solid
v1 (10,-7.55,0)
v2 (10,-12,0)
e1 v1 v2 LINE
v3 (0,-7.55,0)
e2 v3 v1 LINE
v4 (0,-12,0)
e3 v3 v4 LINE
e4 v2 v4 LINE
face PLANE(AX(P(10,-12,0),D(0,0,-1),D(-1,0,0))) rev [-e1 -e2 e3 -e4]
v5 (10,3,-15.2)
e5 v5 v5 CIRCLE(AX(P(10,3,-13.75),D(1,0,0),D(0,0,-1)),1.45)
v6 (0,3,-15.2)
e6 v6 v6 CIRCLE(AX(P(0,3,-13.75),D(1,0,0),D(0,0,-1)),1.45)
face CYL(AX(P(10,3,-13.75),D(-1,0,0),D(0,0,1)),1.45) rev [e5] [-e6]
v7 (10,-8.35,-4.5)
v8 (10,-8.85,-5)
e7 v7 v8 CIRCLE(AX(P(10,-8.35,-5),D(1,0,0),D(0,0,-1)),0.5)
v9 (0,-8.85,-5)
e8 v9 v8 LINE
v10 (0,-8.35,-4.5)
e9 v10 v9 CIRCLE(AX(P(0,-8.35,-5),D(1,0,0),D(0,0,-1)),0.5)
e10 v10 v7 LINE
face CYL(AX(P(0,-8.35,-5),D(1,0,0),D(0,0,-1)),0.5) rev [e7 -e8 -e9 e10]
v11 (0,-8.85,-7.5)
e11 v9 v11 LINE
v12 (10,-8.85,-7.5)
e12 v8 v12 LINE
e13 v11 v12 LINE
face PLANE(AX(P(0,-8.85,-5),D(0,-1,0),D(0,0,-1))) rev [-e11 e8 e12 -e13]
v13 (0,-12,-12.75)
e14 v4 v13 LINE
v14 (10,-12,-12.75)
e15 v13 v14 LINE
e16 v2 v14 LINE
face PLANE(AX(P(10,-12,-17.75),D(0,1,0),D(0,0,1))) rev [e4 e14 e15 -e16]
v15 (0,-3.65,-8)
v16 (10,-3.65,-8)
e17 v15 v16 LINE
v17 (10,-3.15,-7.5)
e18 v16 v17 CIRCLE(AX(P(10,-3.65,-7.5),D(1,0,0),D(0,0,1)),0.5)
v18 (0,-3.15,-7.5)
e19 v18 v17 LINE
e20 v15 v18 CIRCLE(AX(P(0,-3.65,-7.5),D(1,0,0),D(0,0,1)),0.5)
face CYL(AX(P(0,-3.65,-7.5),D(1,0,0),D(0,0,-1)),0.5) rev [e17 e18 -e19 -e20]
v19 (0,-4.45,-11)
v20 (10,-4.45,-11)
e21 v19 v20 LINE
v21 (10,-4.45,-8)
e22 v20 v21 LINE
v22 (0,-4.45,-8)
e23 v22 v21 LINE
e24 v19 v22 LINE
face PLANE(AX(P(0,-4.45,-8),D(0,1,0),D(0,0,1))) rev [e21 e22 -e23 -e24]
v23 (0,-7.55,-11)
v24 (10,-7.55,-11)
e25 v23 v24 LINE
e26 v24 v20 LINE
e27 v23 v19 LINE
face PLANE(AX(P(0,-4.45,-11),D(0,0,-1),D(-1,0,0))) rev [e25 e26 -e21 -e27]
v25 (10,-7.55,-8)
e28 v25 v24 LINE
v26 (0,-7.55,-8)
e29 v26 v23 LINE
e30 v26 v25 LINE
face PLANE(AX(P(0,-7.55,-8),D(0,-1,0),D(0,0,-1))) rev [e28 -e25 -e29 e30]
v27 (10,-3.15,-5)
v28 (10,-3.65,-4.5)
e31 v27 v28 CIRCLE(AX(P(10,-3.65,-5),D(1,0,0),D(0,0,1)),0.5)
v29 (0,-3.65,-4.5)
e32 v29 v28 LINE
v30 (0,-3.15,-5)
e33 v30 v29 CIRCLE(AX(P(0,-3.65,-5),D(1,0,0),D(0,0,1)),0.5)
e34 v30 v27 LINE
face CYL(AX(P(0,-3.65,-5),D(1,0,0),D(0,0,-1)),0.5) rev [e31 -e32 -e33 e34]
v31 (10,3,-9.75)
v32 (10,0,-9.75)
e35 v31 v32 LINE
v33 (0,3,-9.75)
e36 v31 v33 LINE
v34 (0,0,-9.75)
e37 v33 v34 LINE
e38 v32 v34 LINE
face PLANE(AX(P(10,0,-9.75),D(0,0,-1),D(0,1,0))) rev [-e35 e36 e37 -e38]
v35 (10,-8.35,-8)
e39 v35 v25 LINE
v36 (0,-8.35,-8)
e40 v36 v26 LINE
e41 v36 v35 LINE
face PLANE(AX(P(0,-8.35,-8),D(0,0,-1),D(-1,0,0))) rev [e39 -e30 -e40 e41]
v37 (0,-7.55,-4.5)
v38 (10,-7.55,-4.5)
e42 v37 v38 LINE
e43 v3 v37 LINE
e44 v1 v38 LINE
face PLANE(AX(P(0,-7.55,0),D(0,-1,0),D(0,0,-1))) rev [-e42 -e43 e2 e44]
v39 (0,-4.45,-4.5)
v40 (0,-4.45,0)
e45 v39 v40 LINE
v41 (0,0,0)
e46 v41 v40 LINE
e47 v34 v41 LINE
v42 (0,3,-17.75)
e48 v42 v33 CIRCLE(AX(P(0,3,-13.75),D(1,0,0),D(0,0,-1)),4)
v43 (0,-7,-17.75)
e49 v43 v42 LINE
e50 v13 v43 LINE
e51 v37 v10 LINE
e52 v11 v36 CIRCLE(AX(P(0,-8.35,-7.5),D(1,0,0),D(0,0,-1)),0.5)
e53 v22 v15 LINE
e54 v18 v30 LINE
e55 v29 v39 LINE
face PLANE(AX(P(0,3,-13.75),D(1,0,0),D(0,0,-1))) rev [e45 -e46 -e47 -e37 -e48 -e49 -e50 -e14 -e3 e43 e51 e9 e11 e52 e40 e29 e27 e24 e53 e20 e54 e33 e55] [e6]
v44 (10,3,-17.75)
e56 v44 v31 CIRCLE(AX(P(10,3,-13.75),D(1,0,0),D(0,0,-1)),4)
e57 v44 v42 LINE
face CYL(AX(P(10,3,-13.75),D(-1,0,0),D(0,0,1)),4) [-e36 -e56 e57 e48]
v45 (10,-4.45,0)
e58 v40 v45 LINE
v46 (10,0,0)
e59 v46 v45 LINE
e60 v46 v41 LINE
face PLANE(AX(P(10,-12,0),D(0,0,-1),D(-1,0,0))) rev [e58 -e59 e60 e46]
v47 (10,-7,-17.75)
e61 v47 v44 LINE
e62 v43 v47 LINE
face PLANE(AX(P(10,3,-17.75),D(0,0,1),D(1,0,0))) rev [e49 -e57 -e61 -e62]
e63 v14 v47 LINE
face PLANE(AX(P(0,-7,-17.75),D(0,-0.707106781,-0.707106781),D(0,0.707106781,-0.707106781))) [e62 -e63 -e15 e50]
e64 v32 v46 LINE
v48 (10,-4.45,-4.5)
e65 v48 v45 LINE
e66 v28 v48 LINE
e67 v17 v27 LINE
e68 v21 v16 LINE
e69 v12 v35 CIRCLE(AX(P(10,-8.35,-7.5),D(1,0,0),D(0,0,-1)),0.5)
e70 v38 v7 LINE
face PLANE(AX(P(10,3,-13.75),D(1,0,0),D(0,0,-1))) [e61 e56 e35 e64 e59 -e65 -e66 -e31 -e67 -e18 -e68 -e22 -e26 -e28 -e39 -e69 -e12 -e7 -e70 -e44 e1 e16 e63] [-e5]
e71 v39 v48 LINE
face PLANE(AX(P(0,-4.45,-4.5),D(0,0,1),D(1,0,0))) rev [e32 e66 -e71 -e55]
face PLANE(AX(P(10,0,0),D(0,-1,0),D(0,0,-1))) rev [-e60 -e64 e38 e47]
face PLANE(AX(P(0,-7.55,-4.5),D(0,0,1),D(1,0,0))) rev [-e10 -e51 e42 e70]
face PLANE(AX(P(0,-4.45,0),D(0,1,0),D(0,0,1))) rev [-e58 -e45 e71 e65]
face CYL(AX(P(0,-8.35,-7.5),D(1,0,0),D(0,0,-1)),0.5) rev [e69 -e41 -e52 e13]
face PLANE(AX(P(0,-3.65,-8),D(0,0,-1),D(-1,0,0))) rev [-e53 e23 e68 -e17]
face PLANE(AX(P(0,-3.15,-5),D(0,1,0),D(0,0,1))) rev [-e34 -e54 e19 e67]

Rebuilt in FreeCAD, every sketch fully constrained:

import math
import FreeCAD as App
import Part
import Sketcher
from FreeCAD import Vector
Q = App.Units.Quantity

doc = App.newDocument("Part")
body = doc.addObject("PartDesign::Body", "Body")

# Sketch on YZ plane
sketch1 = doc.addObject("Sketcher::SketchObject", "Sketch")
body.addObject(sketch1)
sketch1.AttachmentSupport = (doc.YZ_Plane, [""])
sketch1.MapMode = "FlatFace"
sketch1.addGeometry(Part.LineSegment(Vector(0, -9.75, 0), Vector(0, 0, 0)), False)
sketch1.addGeometry(Part.LineSegment(Vector(0, 0, 0), Vector(-12, 0, 0)), False)
sketch1.addGeometry(Part.LineSegment(Vector(-12, 0, 0), Vector(-12, -17.75, 0)), False)
sketch1.addGeometry(Part.LineSegment(Vector(-12, -17.75, 0), Vector(-35.214079, -56.15989, 0)), False)
sketch1.addGeometry(Part.ArcOfCircle(Part.Circle(Vector(-31.790736, -58.228882, 0), Vector(0, 0, 1), 4), math.radians(148.852173), math.radians(328.852173)), False)
sketch1.addGeometry(Part.LineSegment(Vector(-28.367394, -60.297873, 0), Vector(-2.65241, -17.75, 0)), False)
sketch1.addGeometry(Part.LineSegment(Vector(-2.65241, -17.75, 0), Vector(3, -17.75, 0)), False)
sketch1.addGeometry(Part.ArcOfCircle(Part.Circle(Vector(3, -13.75, 0), Vector(0, 0, 1), 4), math.radians(-90), math.radians(90)), False)
sketch1.addGeometry(Part.LineSegment(Vector(3, -9.75, 0), Vector(0, -9.75, 0)), False)
sketch1.addGeometry(Part.Circle(Vector(-31.790736, -58.228882, 0), Vector(0, 0, 1), 1.45), False)
sketch1.addGeometry(Part.Circle(Vector(3, -13.75, 0), Vector(0, 0, 1), 1.45), False)
sketch1.addConstraint(Sketcher.Constraint("Coincident", 0, 2, 1, 1))
sketch1.addConstraint(Sketcher.Constraint("Coincident", 1, 2, 2, 1))
sketch1.addConstraint(Sketcher.Constraint("Coincident", 2, 2, 3, 1))
sketch1.addConstraint(Sketcher.Constraint("Tangent", 3, 2, 4, 1))
sketch1.addConstraint(Sketcher.Constraint("Tangent", 4, 2, 5, 1))
sketch1.addConstraint(Sketcher.Constraint("Coincident", 5, 2, 6, 1))
sketch1.addConstraint(Sketcher.Constraint("Tangent", 6, 2, 7, 1))
sketch1.addConstraint(Sketcher.Constraint("Tangent", 7, 2, 8, 1))
sketch1.addConstraint(Sketcher.Constraint("Coincident", 8, 2, 0, 1))
sketch1.addConstraint(Sketcher.Constraint("Vertical", 0))
sketch1.addConstraint(Sketcher.Constraint("Horizontal", 1))
sketch1.addConstraint(Sketcher.Constraint("Vertical", 2))
sketch1.addConstraint(Sketcher.Constraint("Horizontal", 6))
sketch1.addConstraint(Sketcher.Constraint("Horizontal", 8))
sketch1.addConstraint(Sketcher.Constraint("Coincident", 0, 2, -1, 1))
sketch1.addConstraint(Sketcher.Constraint("Coincident", 9, 3, 4, 3))
sketch1.addConstraint(Sketcher.Constraint("Coincident", 10, 3, 7, 3))
sketch1.addConstraint(Sketcher.Constraint("Equal", 4, 7))
sketch1.addConstraint(Sketcher.Constraint("Equal", 9, 10))
sketch1.addConstraint(Sketcher.Constraint("Parallel", 3, 5))
sketch1.addConstraint(Sketcher.Constraint("Horizontal", 2, 2, 5, 2))
sketch1.addConstraint(Sketcher.Constraint("Radius", 4, 4.0))
sketch1.addConstraint(Sketcher.Constraint("Diameter", 9, 2.9))
sketch1.addConstraint(Sketcher.Constraint("DistanceX", 1, 2, 1, 1, 12.0))
sketch1.addConstraint(Sketcher.Constraint("DistanceX", 8, 2, 8, 1, 3.0))
sketch1.addConstraint(Sketcher.Constraint("DistanceY", 0, 1, 0, 2, 9.75))
sketch1.addConstraint(Sketcher.Constraint("DistanceX", 6, 1, 6, 2, 5.65241))
sketch1.addConstraint(Sketcher.Constraint("DistanceY", 4, 3, -1, 1, 58.228882))
pad1 = doc.addObject("PartDesign::Pad", "Pad")
body.addObject(pad1)
pad1.Profile = sketch1
pad1.Length = 10

# Sketch on YZ plane
sketch2 = doc.addObject("Sketcher::SketchObject", "Sketch001")
body.addObject(sketch2)
sketch2.AttachmentSupport = (doc.YZ_Plane, [""])
sketch2.MapMode = "FlatFace"
sketch2.AttachmentOffset = App.Placement(Vector(0, 0, 10), App.Rotation())
sketch2.addGeometry(Part.LineSegment(Vector(-4.45, 0, 0), Vector(-7.55, 0, 0)), False)
sketch2.addGeometry(Part.LineSegment(Vector(-7.55, 0, 0), Vector(-7.55, -4.5, 0)), False)
sketch2.addGeometry(Part.LineSegment(Vector(-7.55, -4.5, 0), Vector(-8.35, -4.5, 0)), False)
sketch2.addGeometry(Part.ArcOfCircle(Part.Circle(Vector(-8.35, -5, 0), Vector(0, 0, 1), 0.5), math.radians(90), math.radians(180)), False)
sketch2.addGeometry(Part.LineSegment(Vector(-8.85, -5, 0), Vector(-8.85, -7.5, 0)), False)
sketch2.addGeometry(Part.ArcOfCircle(Part.Circle(Vector(-8.35, -7.5, 0), Vector(0, 0, 1), 0.5), math.radians(180), math.radians(270)), False)
sketch2.addGeometry(Part.LineSegment(Vector(-8.35, -8, 0), Vector(-7.55, -8, 0)), False)
sketch2.addGeometry(Part.LineSegment(Vector(-7.55, -8, 0), Vector(-7.55, -11, 0)), False)
sketch2.addGeometry(Part.LineSegment(Vector(-7.55, -11, 0), Vector(-4.45, -11, 0)), False)
sketch2.addGeometry(Part.LineSegment(Vector(-4.45, -11, 0), Vector(-4.45, -8, 0)), False)
sketch2.addGeometry(Part.LineSegment(Vector(-4.45, -8, 0), Vector(-3.65, -8, 0)), False)
sketch2.addGeometry(Part.ArcOfCircle(Part.Circle(Vector(-3.65, -7.5, 0), Vector(0, 0, 1), 0.5), math.radians(-90), math.radians(0)), False)
sketch2.addGeometry(Part.LineSegment(Vector(-3.15, -7.5, 0), Vector(-3.15, -5, 0)), False)
sketch2.addGeometry(Part.ArcOfCircle(Part.Circle(Vector(-3.65, -5, 0), Vector(0, 0, 1), 0.5), math.radians(0), math.radians(90)), False)
sketch2.addGeometry(Part.LineSegment(Vector(-3.65, -4.5, 0), Vector(-4.45, -4.5, 0)), False)
sketch2.addGeometry(Part.LineSegment(Vector(-4.45, -4.5, 0), Vector(-4.45, 0, 0)), False)
sketch2.addConstraint(Sketcher.Constraint("Coincident", 0, 2, 1, 1))
sketch2.addConstraint(Sketcher.Constraint("Coincident", 1, 2, 2, 1))
sketch2.addConstraint(Sketcher.Constraint("Tangent", 2, 2, 3, 1))
sketch2.addConstraint(Sketcher.Constraint("Tangent", 3, 2, 4, 1))
sketch2.addConstraint(Sketcher.Constraint("Tangent", 4, 2, 5, 1))
sketch2.addConstraint(Sketcher.Constraint("Tangent", 5, 2, 6, 1))
sketch2.addConstraint(Sketcher.Constraint("Coincident", 6, 2, 7, 1))
sketch2.addConstraint(Sketcher.Constraint("Coincident", 7, 2, 8, 1))
sketch2.addConstraint(Sketcher.Constraint("Coincident", 8, 2, 9, 1))
sketch2.addConstraint(Sketcher.Constraint("Coincident", 9, 2, 10, 1))
sketch2.addConstraint(Sketcher.Constraint("Tangent", 10, 2, 11, 1))
sketch2.addConstraint(Sketcher.Constraint("Tangent", 11, 2, 12, 1))
sketch2.addConstraint(Sketcher.Constraint("Tangent", 12, 2, 13, 1))
sketch2.addConstraint(Sketcher.Constraint("Tangent", 13, 2, 14, 1))
sketch2.addConstraint(Sketcher.Constraint("Coincident", 14, 2, 15, 1))
sketch2.addConstraint(Sketcher.Constraint("Coincident", 15, 2, 0, 1))
sketch2.addConstraint(Sketcher.Constraint("Horizontal", 0))
sketch2.addConstraint(Sketcher.Constraint("Vertical", 1))
sketch2.addConstraint(Sketcher.Constraint("Horizontal", 2))
sketch2.addConstraint(Sketcher.Constraint("Vertical", 4))
sketch2.addConstraint(Sketcher.Constraint("Horizontal", 6))
sketch2.addConstraint(Sketcher.Constraint("Vertical", 7))
sketch2.addConstraint(Sketcher.Constraint("Horizontal", 8))
sketch2.addConstraint(Sketcher.Constraint("Vertical", 9))
sketch2.addConstraint(Sketcher.Constraint("Horizontal", 10))
sketch2.addConstraint(Sketcher.Constraint("Vertical", 12))
sketch2.addConstraint(Sketcher.Constraint("Horizontal", 14))
sketch2.addConstraint(Sketcher.Constraint("Vertical", 15))
sketch2.addConstraint(Sketcher.Constraint("Equal", 3, 5))
sketch2.addConstraint(Sketcher.Constraint("Equal", 5, 11))
sketch2.addConstraint(Sketcher.Constraint("Equal", 11, 13))
sketch2.addConstraint(Sketcher.Constraint("PointOnObject", 0, 2, -1))
sketch2.addConstraint(Sketcher.Constraint("Horizontal", 5, 3, 11, 3))
sketch2.addConstraint(Sketcher.Constraint("Horizontal", 3, 3, 13, 3))
sketch2.addConstraint(Sketcher.Constraint("Vertical", 1, 2, 6, 2))
sketch2.addConstraint(Sketcher.Constraint("Vertical", 9, 2, 14, 2))
sketch2.addConstraint(Sketcher.Constraint("Equal", 6, 10))
sketch2.addConstraint(Sketcher.Constraint("Radius", 3, 0.5))
sketch2.addConstraint(Sketcher.Constraint("DistanceY", 7, 2, 7, 1, 3.0))
sketch2.addConstraint(Sketcher.Constraint("DistanceX", 0, 2, 0, 1, 3.1))
sketch2.addConstraint(Sketcher.Constraint("DistanceX", 2, 2, 2, 1, 0.8))
sketch2.addConstraint(Sketcher.Constraint("DistanceY", 1, 2, 1, 1, 4.5))
sketch2.addConstraint(Sketcher.Constraint("DistanceY", 4, 2, 4, 1, 2.5))
sketch2.addConstraint(Sketcher.Constraint("DistanceX", 3, 3, -1, 1, 8.35))
pocket1 = doc.addObject("PartDesign::Pocket", "Pocket")
body.addObject(pocket1)
pocket1.Profile = sketch2
pocket1.Type = "ThroughAll"

# Sketch on YZ plane
sketch3 = doc.addObject("Sketcher::SketchObject", "Sketch002")
body.addObject(sketch3)
sketch3.AttachmentSupport = (doc.YZ_Plane, [""])
sketch3.MapMode = "FlatFace"
sketch3.AttachmentOffset = App.Placement(Vector(0, 0, 10), App.Rotation())
sketch3.addGeometry(Part.LineSegment(Vector(15.618, 8.618, 0), Vector(-44.409, 8.618, 0)), False)
sketch3.addGeometry(Part.LineSegment(Vector(-44.409, 8.618, 0), Vector(-44.409, -70.847, 0)), False)
sketch3.addGeometry(Part.LineSegment(Vector(-44.409, -70.847, 0), Vector(15.618, -70.847, 0)), False)
sketch3.addGeometry(Part.LineSegment(Vector(15.618, -70.847, 0), Vector(15.618, -17.75, 0)), False)
sketch3.addGeometry(Part.LineSegment(Vector(15.618, -17.75, 0), Vector(-7, -17.75, 0)), False)
sketch3.addGeometry(Part.LineSegment(Vector(-7, -17.75, 0), Vector(-12, -12.75, 0)), False)
sketch3.addGeometry(Part.LineSegment(Vector(-12, -12.75, 0), Vector(-12, 0, 0)), False)
sketch3.addGeometry(Part.LineSegment(Vector(-12, 0, 0), Vector(0, 0, 0)), False)
sketch3.addGeometry(Part.LineSegment(Vector(0, 0, 0), Vector(15.618, -6.446965, 0)), False)
sketch3.addGeometry(Part.LineSegment(Vector(15.618, -6.446965, 0), Vector(15.618, 8.618, 0)), False)
sketch3.addConstraint(Sketcher.Constraint("Coincident", 0, 2, 1, 1))
sketch3.addConstraint(Sketcher.Constraint("Coincident", 1, 2, 2, 1))
sketch3.addConstraint(Sketcher.Constraint("Coincident", 2, 2, 3, 1))
sketch3.addConstraint(Sketcher.Constraint("Coincident", 3, 2, 4, 1))
sketch3.addConstraint(Sketcher.Constraint("Coincident", 4, 2, 5, 1))
sketch3.addConstraint(Sketcher.Constraint("Coincident", 5, 2, 6, 1))
sketch3.addConstraint(Sketcher.Constraint("Coincident", 6, 2, 7, 1))
sketch3.addConstraint(Sketcher.Constraint("Coincident", 7, 2, 8, 1))
sketch3.addConstraint(Sketcher.Constraint("Coincident", 8, 2, 9, 1))
sketch3.addConstraint(Sketcher.Constraint("Coincident", 9, 2, 0, 1))
sketch3.addConstraint(Sketcher.Constraint("Horizontal", 0))
sketch3.addConstraint(Sketcher.Constraint("Vertical", 1))
sketch3.addConstraint(Sketcher.Constraint("Horizontal", 2))
sketch3.addConstraint(Sketcher.Constraint("Vertical", 3))
sketch3.addConstraint(Sketcher.Constraint("Horizontal", 4))
sketch3.addConstraint(Sketcher.Constraint("Vertical", 6))
sketch3.addConstraint(Sketcher.Constraint("Horizontal", 7))
sketch3.addConstraint(Sketcher.Constraint("Vertical", 9))
sketch3.addConstraint(Sketcher.Constraint("Coincident", 7, 2, -1, 1))
sketch3.addConstraint(Sketcher.Constraint("Vertical", 3, 2, 8, 2))
sketch3.addConstraint(Sketcher.Constraint("DistanceX", 7, 1, 7, 2, 12.0))
sketch3.addConstraint(Sketcher.Constraint("Angle", 5, Q("135 deg")))
sketch3.addConstraint(Sketcher.Constraint("DistanceX", 4, 2, -1, 1, 7.0))
sketch3.addConstraint(Sketcher.Constraint("DistanceY", 6, 1, 6, 2, 12.75))
sketch3.addConstraint(Sketcher.Constraint("DistanceX", 0, 2, 0, 1, 60.027))
sketch3.addConstraint(Sketcher.Constraint("DistanceX", 4, 2, 4, 1, 22.618))
sketch3.addConstraint(Sketcher.Constraint("DistanceY", 1, 2, 1, 1, 79.465))
sketch3.addConstraint(Sketcher.Constraint("DistanceY", 3, 1, 3, 2, 53.097))
sketch3.addConstraint(Sketcher.Constraint("Distance", 8, 16.89631))
pocket2 = doc.addObject("PartDesign::Pocket", "Pocket001")
body.addObject(pocket2)
pocket2.Profile = sketch3
pocket2.Length = 10

doc.recompute()
